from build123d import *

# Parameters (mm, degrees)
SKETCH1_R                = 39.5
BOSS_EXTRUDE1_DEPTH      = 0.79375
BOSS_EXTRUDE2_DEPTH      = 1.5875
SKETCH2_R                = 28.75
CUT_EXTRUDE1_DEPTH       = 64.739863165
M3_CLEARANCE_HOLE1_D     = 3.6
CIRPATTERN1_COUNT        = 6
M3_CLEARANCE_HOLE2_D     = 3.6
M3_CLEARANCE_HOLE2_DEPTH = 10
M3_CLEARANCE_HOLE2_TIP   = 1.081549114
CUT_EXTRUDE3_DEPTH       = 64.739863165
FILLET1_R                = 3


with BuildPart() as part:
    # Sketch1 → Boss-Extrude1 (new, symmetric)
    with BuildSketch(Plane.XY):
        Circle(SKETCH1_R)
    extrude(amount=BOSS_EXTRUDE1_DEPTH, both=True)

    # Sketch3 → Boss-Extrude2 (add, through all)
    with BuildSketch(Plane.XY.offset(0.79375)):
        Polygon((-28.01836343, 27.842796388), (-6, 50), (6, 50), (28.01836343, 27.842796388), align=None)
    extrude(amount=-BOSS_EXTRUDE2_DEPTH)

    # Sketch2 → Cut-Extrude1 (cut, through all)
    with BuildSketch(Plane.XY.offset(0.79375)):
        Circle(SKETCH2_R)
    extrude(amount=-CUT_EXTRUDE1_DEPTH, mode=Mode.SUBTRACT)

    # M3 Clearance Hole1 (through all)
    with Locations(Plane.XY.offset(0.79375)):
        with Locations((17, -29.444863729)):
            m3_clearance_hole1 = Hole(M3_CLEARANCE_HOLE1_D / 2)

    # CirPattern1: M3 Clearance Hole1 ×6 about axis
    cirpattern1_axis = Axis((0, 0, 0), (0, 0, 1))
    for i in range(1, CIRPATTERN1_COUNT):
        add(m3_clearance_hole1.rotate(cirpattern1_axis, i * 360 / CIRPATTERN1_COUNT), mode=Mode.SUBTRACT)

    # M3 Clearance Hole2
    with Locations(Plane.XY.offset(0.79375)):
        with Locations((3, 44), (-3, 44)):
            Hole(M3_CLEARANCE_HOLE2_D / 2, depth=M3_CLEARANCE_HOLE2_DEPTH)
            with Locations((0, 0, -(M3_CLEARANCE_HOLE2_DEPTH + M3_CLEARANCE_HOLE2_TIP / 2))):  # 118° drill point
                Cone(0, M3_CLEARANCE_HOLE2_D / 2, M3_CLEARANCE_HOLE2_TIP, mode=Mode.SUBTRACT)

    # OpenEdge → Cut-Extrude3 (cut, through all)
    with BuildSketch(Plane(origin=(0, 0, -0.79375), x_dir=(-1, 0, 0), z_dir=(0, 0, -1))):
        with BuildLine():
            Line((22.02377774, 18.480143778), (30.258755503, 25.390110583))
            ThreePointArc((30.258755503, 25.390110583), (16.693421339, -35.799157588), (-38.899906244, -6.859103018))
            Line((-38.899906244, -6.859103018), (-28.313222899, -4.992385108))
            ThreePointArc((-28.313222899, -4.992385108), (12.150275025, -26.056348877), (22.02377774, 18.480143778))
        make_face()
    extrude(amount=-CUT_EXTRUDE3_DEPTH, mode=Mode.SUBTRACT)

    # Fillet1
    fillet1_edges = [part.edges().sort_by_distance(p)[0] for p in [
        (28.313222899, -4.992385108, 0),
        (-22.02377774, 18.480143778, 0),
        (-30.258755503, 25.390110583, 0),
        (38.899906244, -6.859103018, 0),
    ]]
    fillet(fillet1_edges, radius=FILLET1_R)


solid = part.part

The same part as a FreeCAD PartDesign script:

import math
import FreeCAD as App
import Part
import Sketcher
Q = App.Units.Quantity


def edges_at(feature, points):
    """Names of the edges that pass closest to the given points."""
    edges = feature.Shape.Edges
    near = lambda p: min(range(len(edges)), key=lambda i: edges[i].distToShape(Part.Vertex(*p))[0])
    return sorted({f"Edge{near(p) + 1}" for p in points})


def add_polygon(sketch, points):
    """Adds a closed chain of lines whose ends are joined by coincident constraints."""
    first, n = sketch.GeometryCount, len(points)
    for a, b in zip(points, points[1:] + points[:1]):
        sketch.addGeometry(Part.LineSegment(App.Vector(*a, 0), App.Vector(*b, 0)), False)
    for i in range(n):
        sketch.addConstraint(Sketcher.Constraint("Coincident", first + i, 2, first + (i + 1) % n, 1))

doc = App.newDocument("Part")
params = doc.addObject("Spreadsheet::Sheet", "Params")
for row, (alias, value) in enumerate([
    ("sketch1_diameter", "79 mm"),
    ("pad1_length", "1.5875 mm"),
    ("sketch2_width", "12 mm"),
    ("sketch3_diameter", "57.5 mm"),
    ("sketch4_diameter", "3.6 mm"),
    ("hole_diameter", "3.6 mm"),
    ("sketch5_diameter", "3.6 mm"),
    ("hole2_diameter", "3.6 mm"),
    ("hole2_depth", "10 mm"),
    ("sketch6_radius", "39.5 mm"),
    ("sketch6_radius2", "28.75 mm"),
    ("fillet_radius", "3 mm"),
], start=1):
    params.set(f"A{row}", alias)
    params.set(f"B{row}", "=" + value)
    params.setAlias(f"B{row}", alias)

body = doc.addObject("PartDesign::Body", "Body")

# Sketch on XY plane
sketch1 = body.newObject("Sketcher::SketchObject", "Sketch")
sketch1.AttachmentSupport = (doc.getObject("XY_Plane"), [""])
sketch1.MapMode = "FlatFace"
sketch1.addGeometry(Part.Circle(App.Vector(0, 0, 0), App.Vector(0, 0, 1), 40), False)
sketch1.addConstraint([
    Sketcher.Constraint("Coincident", 0, 3, -1, 1),
    Sketcher.Constraint("Diameter", 0, 79.0),
])
sketch1.setExpression("Constraints[1]", "Params.sketch1_diameter")
pad1 = body.newObject("PartDesign::Pad", "Pad")
pad1.Profile = sketch1
pad1.setExpression("Length", "Params.pad1_length")
pad1.Midplane = True

# Sketch on XY plane
sketch2 = body.newObject("Sketcher::SketchObject", "Sketch001")
sketch2.AttachmentSupport = (doc.getObject("XY_Plane"), [""])
sketch2.MapMode = "FlatFace"
sketch2.AttachmentOffset = App.Placement(App.Vector(0, 0, 0.79375), App.Rotation())
add_polygon(sketch2, [(-6, 50), (-28, 28), (28, 28), (6, 50)])  # lines 0-3
sketch2.addConstraint([
    Sketcher.Constraint("Horizontal", 1),
    Sketcher.Constraint("Horizontal", 3),
    Sketcher.Constraint("Equal", 0, 2),
    Sketcher.Constraint("DistanceX", 3, 2, 3, 1, 12.0),
    Sketcher.Constraint("DistanceX", -1, 1, 2, 2, 6.0),
    Sketcher.Constraint("DistanceY", -1, 1, 2, 2, 50.0),
    Sketcher.Constraint("DistanceX", 1, 1, 1, 2, 56.036727),
    Sketcher.Constraint("Distance", 0, 31.236997),
])
sketch2.setExpression("Constraints[7]", "Params.sketch2_width")
pad2 = body.newObject("PartDesign::Pad", "Pad001")
pad2.Profile = sketch2
pad2.Type = "UpToLast"
pad2.Reversed = True

# Sketch on XY plane
sketch3 = body.newObject("Sketcher::SketchObject", "Sketch002")
sketch3.AttachmentSupport = (doc.getObject("XY_Plane"), [""])
sketch3.MapMode = "FlatFace"
sketch3.AttachmentOffset = App.Placement(App.Vector(0, 0, 0.79375), App.Rotation())
sketch3.addGeometry(Part.Circle(App.Vector(0, 0, 0), App.Vector(0, 0, 1), 29), False)
sketch3.addConstraint([
    Sketcher.Constraint("Coincident", 0, 3, -1, 1),
    Sketcher.Constraint("Diameter", 0, 57.5),
])
sketch3.setExpression("Constraints[1]", "Params.sketch3_diameter")
pocket1 = body.newObject("PartDesign::Pocket", "Pocket")
pocket1.Profile = sketch3
pocket1.Type = "ThroughAll"

# Sketch on XY plane
sketch4 = body.newObject("Sketcher::SketchObject", "Sketch003")
sketch4.AttachmentSupport = (doc.getObject("XY_Plane"), [""])
sketch4.MapMode = "FlatFace"
sketch4.AttachmentOffset = App.Placement(App.Vector(0, 0, 0.79375), App.Rotation())
sketch4.addGeometry(Part.Circle(App.Vector(17, -29.4, 0), App.Vector(0, 0, 1), 1.8), False)
sketch4.addConstraint([
    Sketcher.Constraint("Diameter", 0, 3.6),
    Sketcher.Constraint("DistanceX", -1, 1, 0, 3, 17.0),
    Sketcher.Constraint("DistanceY", 0, 3, -1, 1, 29.444864),
])
sketch4.setExpression("Constraints[0]", "Params.sketch4_diameter")
doc.recompute()
hole = body.newObject("PartDesign::Hole", "Hole")
hole.Profile = sketch4
hole.ThreadType = "None"
hole.setExpression("Diameter", "Params.hole_diameter")
hole.DepthType = "ThroughAll"
doc.recompute()

polarpattern = body.newObject("PartDesign::PolarPattern", "PolarPattern")
polarpattern.Originals = [hole]
polarpattern.Axis = (doc.getObject("Z_Axis"), [""])
polarpattern.Angle = 360
polarpattern.Occurrences = 6
body.Tip = polarpattern

# Sketch on XY plane
sketch5 = body.newObject("Sketcher::SketchObject", "Sketch004")
sketch5.AttachmentSupport = (doc.getObject("XY_Plane"), [""])
sketch5.MapMode = "FlatFace"
sketch5.AttachmentOffset = App.Placement(App.Vector(0, 0, 0.79375), App.Rotation())
sketch5.addGeometry([
    Part.Circle(App.Vector(3, 44, 0), App.Vector(0, 0, 1), 1.8),
    Part.Circle(App.Vector(-3, 44, 0), App.Vector(0, 0, 1), 1.8),
], False)
sketch5.addConstraint([
    Sketcher.Constraint("Equal", 0, 1),
    Sketcher.Constraint("Symmetric", 0, 3, 1, 3, -2),
    Sketcher.Constraint("Diameter", 0, 3.6),
    Sketcher.Constraint("DistanceX", -1, 1, 0, 3, 3.0),
    Sketcher.Constraint("DistanceY", -1, 1, 0, 3, 44.0),
])
sketch5.setExpression("Constraints[2]", "Params.sketch5_diameter")
doc.recompute()
hole2 = body.newObject("PartDesign::Hole", "Hole001")
hole2.Profile = sketch5
hole2.ThreadType = "None"
hole2.setExpression("Diameter", "Params.hole2_diameter")
hole2.DepthType = "Dimension"
hole2.setExpression("Depth", "Params.hole2_depth")
hole2.DrillPoint = "Angled"
hole2.DrillPointAngle = 118

# Sketch on XY plane
sketch6 = body.newObject("Sketcher::SketchObject", "Sketch005")
sketch6.AttachmentSupport = (doc.getObject("XY_Plane"), [""])
sketch6.MapMode = "FlatFace"
sketch6.AttachmentOffset = App.Placement(App.Vector(0, 0, -0.79375), App.Rotation())
sketch6.addGeometry([
    Part.LineSegment(App.Vector(-30, 25, 0), App.Vector(-22, 18, 0)),
    Part.ArcOfCircle(Part.Circle(App.Vector(0, 0, 0), App.Vector(0, 0, 1), 29), math.radians(140), math.radians(350)),
    Part.LineSegment(App.Vector(28, -5, 0), App.Vector(39, -7, 0)),
    Part.ArcOfCircle(Part.Circle(App.Vector(0, 0, 0), App.Vector(0, 0, 1), 40), math.radians(140), math.radians(350)),
], False)
sketch6.addConstraint([
    Sketcher.Constraint("Coincident", 0, 2, 1, 1),
    Sketcher.Constraint("Coincident", 1, 2, 2, 1),
    Sketcher.Constraint("Coincident", 2, 2, 3, 2),
    Sketcher.Constraint("Coincident", 3, 1, 0, 1),
    Sketcher.Constraint("Coincident", 1, 3, -1, 1),
    Sketcher.Constraint("Coincident", 3, 3, -1, 1),
    Sketcher.Constraint("Radius", 3, 39.5),
    Sketcher.Constraint("Angle", 0, Q("-40 deg")),
    Sketcher.Constraint("Angle", 2, Q("-10 deg")),
    Sketcher.Constraint("Radius", 1, 28.75),
    Sketcher.Constraint("DistanceX", 0, 2, 1, 2, 50.337001),
    Sketcher.Constraint("DistanceY", -1, 1, 3, 1, 25.390111),
])
sketch6.setExpression("Constraints[6]", "Params.sketch6_radius")
sketch6.setExpression("Constraints[9]", "Params.sketch6_radius2")
pocket2 = body.newObject("PartDesign::Pocket", "Pocket001")
pocket2.Profile = sketch6
pocket2.Type = "ThroughAll"
pocket2.Reversed = True
doc.recompute()

fillet = body.newObject("PartDesign::Fillet", "Fillet")
fillet.Base = (pocket2, edges_at(pocket2, [
    (28.313, -4.992, 0),
    (-22.024, 18.48, 0),
    (-30.259, 25.39, 0),
    (38.9, -6.859, 0),
]))
fillet.setExpression("Radius", "Params.fillet_radius")

doc.recompute()
